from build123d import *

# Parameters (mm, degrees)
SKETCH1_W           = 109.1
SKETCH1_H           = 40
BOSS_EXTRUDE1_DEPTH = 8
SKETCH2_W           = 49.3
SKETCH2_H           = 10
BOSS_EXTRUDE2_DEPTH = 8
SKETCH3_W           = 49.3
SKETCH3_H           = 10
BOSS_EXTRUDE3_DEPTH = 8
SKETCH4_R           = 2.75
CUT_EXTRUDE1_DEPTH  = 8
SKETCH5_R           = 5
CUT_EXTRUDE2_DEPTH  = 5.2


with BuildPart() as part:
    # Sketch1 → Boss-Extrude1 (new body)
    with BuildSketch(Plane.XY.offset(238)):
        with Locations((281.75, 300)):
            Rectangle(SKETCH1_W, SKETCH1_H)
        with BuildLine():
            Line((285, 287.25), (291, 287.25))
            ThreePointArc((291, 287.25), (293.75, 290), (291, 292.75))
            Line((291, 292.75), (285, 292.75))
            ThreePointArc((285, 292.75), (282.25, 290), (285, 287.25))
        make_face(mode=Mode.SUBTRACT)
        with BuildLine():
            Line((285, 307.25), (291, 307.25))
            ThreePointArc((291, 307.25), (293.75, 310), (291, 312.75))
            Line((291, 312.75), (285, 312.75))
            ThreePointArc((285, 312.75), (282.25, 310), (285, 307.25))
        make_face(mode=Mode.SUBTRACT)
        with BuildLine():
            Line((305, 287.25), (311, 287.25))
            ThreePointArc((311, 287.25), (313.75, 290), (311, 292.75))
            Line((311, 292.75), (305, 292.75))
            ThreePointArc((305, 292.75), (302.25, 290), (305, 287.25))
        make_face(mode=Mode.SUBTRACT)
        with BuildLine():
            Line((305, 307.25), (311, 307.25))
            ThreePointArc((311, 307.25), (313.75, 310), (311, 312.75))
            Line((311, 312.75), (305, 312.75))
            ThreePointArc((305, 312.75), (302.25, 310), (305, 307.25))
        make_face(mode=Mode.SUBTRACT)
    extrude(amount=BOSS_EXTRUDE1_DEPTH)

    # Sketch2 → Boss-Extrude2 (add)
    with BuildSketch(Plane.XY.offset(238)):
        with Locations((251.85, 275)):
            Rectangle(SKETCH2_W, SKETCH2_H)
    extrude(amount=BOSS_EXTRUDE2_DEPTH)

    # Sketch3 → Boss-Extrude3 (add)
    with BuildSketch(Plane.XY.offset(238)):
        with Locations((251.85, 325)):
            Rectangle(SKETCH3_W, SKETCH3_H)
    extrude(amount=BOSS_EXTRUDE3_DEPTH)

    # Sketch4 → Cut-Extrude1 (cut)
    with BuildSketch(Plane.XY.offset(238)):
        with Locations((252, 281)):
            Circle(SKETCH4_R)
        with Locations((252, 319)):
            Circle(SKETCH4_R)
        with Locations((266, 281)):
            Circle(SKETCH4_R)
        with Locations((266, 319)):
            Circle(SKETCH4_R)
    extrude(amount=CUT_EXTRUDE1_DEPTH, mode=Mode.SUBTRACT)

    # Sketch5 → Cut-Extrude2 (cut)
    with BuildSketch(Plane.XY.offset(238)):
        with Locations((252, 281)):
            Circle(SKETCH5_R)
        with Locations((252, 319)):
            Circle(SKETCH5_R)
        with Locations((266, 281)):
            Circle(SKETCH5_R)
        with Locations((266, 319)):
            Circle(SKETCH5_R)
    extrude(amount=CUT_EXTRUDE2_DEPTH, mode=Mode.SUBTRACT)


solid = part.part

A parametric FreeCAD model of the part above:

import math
import FreeCAD as App
import Part
import Sketcher
from FreeCAD import Vector

doc = App.newDocument("Part")
body = doc.addObject("PartDesign::Body", "Body")

# Sketch on XY plane
sketch1 = body.newObject("Sketcher::SketchObject", "Sketch")
sketch1.AttachmentSupport = (doc.getObject("XY_Plane"), [""])
sketch1.MapMode = "FlatFace"
sketch1.AttachmentOffset = App.Placement(Vector(0, 0, 238), App.Rotation())
sketch1.addGeometry([
    Part.LineSegment(Vector(227.2, 320, 0), Vector(227.2, 280, 0)),  # 0
    Part.LineSegment(Vector(227.2, 280, 0), Vector(336.3, 280, 0)),  # 1
    Part.LineSegment(Vector(336.3, 280, 0), Vector(336.3, 320, 0)),  # 2
    Part.LineSegment(Vector(336.3, 320, 0), Vector(227.2, 320, 0)),  # 3
    Part.LineSegment(Vector(291, 287.2, 0), Vector(285, 287.2, 0)),  # 4
    Part.ArcOfCircle(Part.Circle(Vector(285, 290, 0), Vector(0, 0, 1), 2.8), math.radians(90), math.radians(270)),  # 5
    Part.LineSegment(Vector(285, 292.8, 0), Vector(291, 292.8, 0)),  # 6
    Part.ArcOfCircle(Part.Circle(Vector(291, 290, 0), Vector(0, 0, 1), 2.8), math.radians(-90), math.radians(90)),  # 7
    Part.LineSegment(Vector(311, 287.2, 0), Vector(305, 287.2, 0)),  # 8
    Part.ArcOfCircle(Part.Circle(Vector(305, 290, 0), Vector(0, 0, 1), 2.8), math.radians(90), math.radians(270)),  # 9
    Part.LineSegment(Vector(305, 292.8, 0), Vector(311, 292.8, 0)),  # 10
    Part.ArcOfCircle(Part.Circle(Vector(311, 290, 0), Vector(0, 0, 1), 2.8), math.radians(-90), math.radians(90)),  # 11
    Part.LineSegment(Vector(291, 307.2, 0), Vector(285, 307.2, 0)),  # 12
    Part.ArcOfCircle(Part.Circle(Vector(285, 310, 0), Vector(0, 0, 1), 2.8), math.radians(90), math.radians(270)),  # 13
    Part.LineSegment(Vector(285, 312.8, 0), Vector(291, 312.8, 0)),  # 14
    Part.ArcOfCircle(Part.Circle(Vector(291, 310, 0), Vector(0, 0, 1), 2.8), math.radians(-90), math.radians(90)),  # 15
    Part.LineSegment(Vector(311, 307.2, 0), Vector(305, 307.2, 0)),  # 16
    Part.ArcOfCircle(Part.Circle(Vector(305, 310, 0), Vector(0, 0, 1), 2.8), math.radians(90), math.radians(270)),  # 17
    Part.LineSegment(Vector(305, 312.8, 0), Vector(311, 312.8, 0)),  # 18
    Part.ArcOfCircle(Part.Circle(Vector(311, 310, 0), Vector(0, 0, 1), 2.8), math.radians(-90), math.radians(90)),  # 19
], False)
sketch1.addConstraint([
    Sketcher.Constraint("Coincident", 0, 2, 1, 1),
    Sketcher.Constraint("Coincident", 1, 2, 2, 1),
    Sketcher.Constraint("Coincident", 2, 2, 3, 1),
    Sketcher.Constraint("Coincident", 3, 2, 0, 1),
    Sketcher.Constraint("Tangent", 4, 2, 5, 2),
    Sketcher.Constraint("Tangent", 5, 1, 6, 1),
    Sketcher.Constraint("Tangent", 6, 2, 7, 2),
    Sketcher.Constraint("Tangent", 7, 1, 4, 1),
    Sketcher.Constraint("Tangent", 8, 2, 9, 2),
    Sketcher.Constraint("Tangent", 9, 1, 10, 1),
    Sketcher.Constraint("Tangent", 10, 2, 11, 2),
    Sketcher.Constraint("Tangent", 11, 1, 8, 1),
    Sketcher.Constraint("Tangent", 12, 2, 13, 2),
    Sketcher.Constraint("Tangent", 13, 1, 14, 1),
    Sketcher.Constraint("Tangent", 14, 2, 15, 2),
    Sketcher.Constraint("Tangent", 15, 1, 12, 1),
    Sketcher.Constraint("Tangent", 16, 2, 17, 2),
    Sketcher.Constraint("Tangent", 17, 1, 18, 1),
    Sketcher.Constraint("Tangent", 18, 2, 19, 2),
    Sketcher.Constraint("Tangent", 19, 1, 16, 1),
    Sketcher.Constraint("Vertical", 0),
    Sketcher.Constraint("Horizontal", 1),
    Sketcher.Constraint("Vertical", 2),
    Sketcher.Constraint("Horizontal", 3),
    Sketcher.Constraint("Horizontal", 4),
    Sketcher.Constraint("Horizontal", 6),
    Sketcher.Constraint("Horizontal", 8),
    Sketcher.Constraint("Horizontal", 10),
    Sketcher.Constraint("Horizontal", 12),
    Sketcher.Constraint("Horizontal", 14),
    Sketcher.Constraint("Horizontal", 16),
    Sketcher.Constraint("Horizontal", 18),
    Sketcher.Constraint("Equal", 7, 9),
    Sketcher.Constraint("Equal", 11, 13),
    Sketcher.Constraint("Equal", 15, 17),
    Sketcher.Constraint("Horizontal", 7, 3, 9, 3),
    Sketcher.Constraint("Horizontal", 15, 3, 17, 3),
    Sketcher.Constraint("Vertical", 5, 3, 13, 3),
    Sketcher.Constraint("Vertical", 7, 3, 15, 3),
    Sketcher.Constraint("Vertical", 9, 3, 17, 3),
    Sketcher.Constraint("Vertical", 11, 3, 19, 3),
    Sketcher.Constraint("Equal", 6, 8),
    Sketcher.Constraint("DistanceX", 4, 2, 4, 1, 6.0),
    Sketcher.Constraint("DistanceY", 0, 2, 0, 1, 40.0),
    Sketcher.Constraint("Radius", 5, 2.75),
    Sketcher.Constraint("DistanceX", 1, 1, 1, 2, 109.1),
    Sketcher.Constraint("DistanceX", -1, 1, 5, 3, 285.0),
    Sketcher.Constraint("DistanceY", -1, 1, 5, 3, 290.0),
    Sketcher.Constraint("DistanceX", -1, 1, 9, 3, 305.0),
    Sketcher.Constraint("DistanceY", -1, 1, 13, 3, 310.0),
    Sketcher.Constraint("DistanceY", -1, 1, 0, 2, 280.0),
    Sketcher.Constraint("DistanceX", -1, 1, 0, 2, 227.2),
])
pad1 = body.newObject("PartDesign::Pad", "Pad")
pad1.Profile = sketch1
pad1.Length = 8

# Sketch on XY plane
sketch2 = body.newObject("Sketcher::SketchObject", "Sketch001")
sketch2.AttachmentSupport = (doc.getObject("XY_Plane"), [""])
sketch2.MapMode = "FlatFace"
sketch2.AttachmentOffset = App.Placement(Vector(0, 0, 238), App.Rotation())
sketch2.addGeometry([
    Part.LineSegment(Vector(227, 280, 0), Vector(227, 270, 0)),
    Part.LineSegment(Vector(227, 270, 0), Vector(276, 270, 0)),
    Part.LineSegment(Vector(276, 270, 0), Vector(276, 280, 0)),
    Part.LineSegment(Vector(276, 280, 0), Vector(227, 280, 0)),
], False)
sketch2.addConstraint([
    Sketcher.Constraint("Coincident", 0, 2, 1, 1),
    Sketcher.Constraint("Coincident", 1, 2, 2, 1),
    Sketcher.Constraint("Coincident", 2, 2, 3, 1),
    Sketcher.Constraint("Coincident", 3, 2, 0, 1),
    Sketcher.Constraint("Vertical", 0),
    Sketcher.Constraint("Horizontal", 1),
    Sketcher.Constraint("Vertical", 2),
    Sketcher.Constraint("Horizontal", 3),
    Sketcher.Constraint("DistanceY", 0, 2, 0, 1, 10.0),
    Sketcher.Constraint("DistanceX", 1, 1, 1, 2, 49.3),
    Sketcher.Constraint("DistanceY", -1, 1, 0, 2, 270.0),
    Sketcher.Constraint("DistanceX", -1, 1, 0, 2, 227.2),
])
pad2 = body.newObject("PartDesign::Pad", "Pad001")
pad2.Profile = sketch2
pad2.Length = 8

# Sketch on XY plane
sketch3 = body.newObject("Sketcher::SketchObject", "Sketch002")
sketch3.AttachmentSupport = (doc.getObject("XY_Plane"), [""])
sketch3.MapMode = "FlatFace"
sketch3.AttachmentOffset = App.Placement(Vector(0, 0, 238), App.Rotation())
sketch3.addGeometry([
    Part.LineSegment(Vector(227, 330, 0), Vector(227, 320, 0)),
    Part.LineSegment(Vector(227, 320, 0), Vector(276, 320, 0)),
    Part.LineSegment(Vector(276, 320, 0), Vector(276, 330, 0)),
    Part.LineSegment(Vector(276, 330, 0), Vector(227, 330, 0)),
], False)
sketch3.addConstraint([
    Sketcher.Constraint("Coincident", 0, 2, 1, 1),
    Sketcher.Constraint("Coincident", 1, 2, 2, 1),
    Sketcher.Constraint("Coincident", 2, 2, 3, 1),
    Sketcher.Constraint("Coincident", 3, 2, 0, 1),
    Sketcher.Constraint("Vertical", 0),
    Sketcher.Constraint("Horizontal", 1),
    Sketcher.Constraint("Vertical", 2),
    Sketcher.Constraint("Horizontal", 3),
    Sketcher.Constraint("DistanceY", 0, 2, 0, 1, 10.0),
    Sketcher.Constraint("DistanceX", 1, 1, 1, 2, 49.3),
    Sketcher.Constraint("DistanceY", -1, 1, 0, 2, 320.0),
    Sketcher.Constraint("DistanceX", -1, 1, 0, 2, 227.2),
])
pad3 = body.newObject("PartDesign::Pad", "Pad002")
pad3.Profile = sketch3
pad3.Length = 8

# Sketch on XY plane
sketch4 = body.newObject("Sketcher::SketchObject", "Sketch003")
sketch4.AttachmentSupport = (doc.getObject("XY_Plane"), [""])
sketch4.MapMode = "FlatFace"
sketch4.AttachmentOffset = App.Placement(Vector(0, 0, 238), App.Rotation())
sketch4.addGeometry([
    Part.Circle(Vector(252, 281, 0), Vector(0, 0, 1), 2.8),
    Part.Circle(Vector(252, 319, 0), Vector(0, 0, 1), 2.8),
    Part.Circle(Vector(266, 281, 0), Vector(0, 0, 1), 2.8),
    Part.Circle(Vector(266, 319, 0), Vector(0, 0, 1), 2.8),
], False)
sketch4.addConstraint([
    Sketcher.Constraint("Equal", 0, 1),
    Sketcher.Constraint("Equal", 1, 2),
    Sketcher.Constraint("Equal", 2, 3),
    Sketcher.Constraint("Horizontal", 0, 3, 2, 3),
    Sketcher.Constraint("Horizontal", 1, 3, 3, 3),
    Sketcher.Constraint("Vertical", 0, 3, 1, 3),
    Sketcher.Constraint("Vertical", 2, 3, 3, 3),
    Sketcher.Constraint("Diameter", 0, 5.5),
    Sketcher.Constraint("DistanceX", -1, 1, 0, 3, 252.0),
    Sketcher.Constraint("DistanceY", -1, 1, 0, 3, 281.0),
    Sketcher.Constraint("DistanceY", -1, 1, 1, 3, 319.0),
    Sketcher.Constraint("DistanceX", -1, 1, 2, 3, 266.0),
])
pocket1 = body.newObject("PartDesign::Pocket", "Pocket")
pocket1.Profile = sketch4
pocket1.Length = 8
pocket1.Reversed = True

# Sketch on XY plane
sketch5 = body.newObject("Sketcher::SketchObject", "Sketch004")
sketch5.AttachmentSupport = (doc.getObject("XY_Plane"), [""])
sketch5.MapMode = "FlatFace"
sketch5.AttachmentOffset = App.Placement(Vector(0, 0, 238), App.Rotation())
sketch5.addGeometry([
    Part.Circle(Vector(252, 281, 0), Vector(0, 0, 1), 5),
    Part.Circle(Vector(252, 319, 0), Vector(0, 0, 1), 5),
    Part.Circle(Vector(266, 281, 0), Vector(0, 0, 1), 5),
    Part.Circle(Vector(266, 319, 0), Vector(0, 0, 1), 5),
], False)
sketch5.addConstraint([
    Sketcher.Constraint("Equal", 0, 1),
    Sketcher.Constraint("Equal", 1, 2),
    Sketcher.Constraint("Equal", 2, 3),
    Sketcher.Constraint("Horizontal", 0, 3, 2, 3),
    Sketcher.Constraint("Horizontal", 1, 3, 3, 3),
    Sketcher.Constraint("Vertical", 0, 3, 1, 3),
    Sketcher.Constraint("Vertical", 2, 3, 3, 3),
    Sketcher.Constraint("Diameter", 0, 10.0),
    Sketcher.Constraint("DistanceX", -1, 1, 0, 3, 252.0),
    Sketcher.Constraint("DistanceY", -1, 1, 0, 3, 281.0),
    Sketcher.Constraint("DistanceY", -1, 1, 1, 3, 319.0),
    Sketcher.Constraint("DistanceX", -1, 1, 2, 3, 266.0),
])
pocket2 = body.newObject("PartDesign::Pocket", "Pocket001")
pocket2.Profile = sketch5
pocket2.Length = 5.2
pocket2.Reversed = True

doc.recompute()
